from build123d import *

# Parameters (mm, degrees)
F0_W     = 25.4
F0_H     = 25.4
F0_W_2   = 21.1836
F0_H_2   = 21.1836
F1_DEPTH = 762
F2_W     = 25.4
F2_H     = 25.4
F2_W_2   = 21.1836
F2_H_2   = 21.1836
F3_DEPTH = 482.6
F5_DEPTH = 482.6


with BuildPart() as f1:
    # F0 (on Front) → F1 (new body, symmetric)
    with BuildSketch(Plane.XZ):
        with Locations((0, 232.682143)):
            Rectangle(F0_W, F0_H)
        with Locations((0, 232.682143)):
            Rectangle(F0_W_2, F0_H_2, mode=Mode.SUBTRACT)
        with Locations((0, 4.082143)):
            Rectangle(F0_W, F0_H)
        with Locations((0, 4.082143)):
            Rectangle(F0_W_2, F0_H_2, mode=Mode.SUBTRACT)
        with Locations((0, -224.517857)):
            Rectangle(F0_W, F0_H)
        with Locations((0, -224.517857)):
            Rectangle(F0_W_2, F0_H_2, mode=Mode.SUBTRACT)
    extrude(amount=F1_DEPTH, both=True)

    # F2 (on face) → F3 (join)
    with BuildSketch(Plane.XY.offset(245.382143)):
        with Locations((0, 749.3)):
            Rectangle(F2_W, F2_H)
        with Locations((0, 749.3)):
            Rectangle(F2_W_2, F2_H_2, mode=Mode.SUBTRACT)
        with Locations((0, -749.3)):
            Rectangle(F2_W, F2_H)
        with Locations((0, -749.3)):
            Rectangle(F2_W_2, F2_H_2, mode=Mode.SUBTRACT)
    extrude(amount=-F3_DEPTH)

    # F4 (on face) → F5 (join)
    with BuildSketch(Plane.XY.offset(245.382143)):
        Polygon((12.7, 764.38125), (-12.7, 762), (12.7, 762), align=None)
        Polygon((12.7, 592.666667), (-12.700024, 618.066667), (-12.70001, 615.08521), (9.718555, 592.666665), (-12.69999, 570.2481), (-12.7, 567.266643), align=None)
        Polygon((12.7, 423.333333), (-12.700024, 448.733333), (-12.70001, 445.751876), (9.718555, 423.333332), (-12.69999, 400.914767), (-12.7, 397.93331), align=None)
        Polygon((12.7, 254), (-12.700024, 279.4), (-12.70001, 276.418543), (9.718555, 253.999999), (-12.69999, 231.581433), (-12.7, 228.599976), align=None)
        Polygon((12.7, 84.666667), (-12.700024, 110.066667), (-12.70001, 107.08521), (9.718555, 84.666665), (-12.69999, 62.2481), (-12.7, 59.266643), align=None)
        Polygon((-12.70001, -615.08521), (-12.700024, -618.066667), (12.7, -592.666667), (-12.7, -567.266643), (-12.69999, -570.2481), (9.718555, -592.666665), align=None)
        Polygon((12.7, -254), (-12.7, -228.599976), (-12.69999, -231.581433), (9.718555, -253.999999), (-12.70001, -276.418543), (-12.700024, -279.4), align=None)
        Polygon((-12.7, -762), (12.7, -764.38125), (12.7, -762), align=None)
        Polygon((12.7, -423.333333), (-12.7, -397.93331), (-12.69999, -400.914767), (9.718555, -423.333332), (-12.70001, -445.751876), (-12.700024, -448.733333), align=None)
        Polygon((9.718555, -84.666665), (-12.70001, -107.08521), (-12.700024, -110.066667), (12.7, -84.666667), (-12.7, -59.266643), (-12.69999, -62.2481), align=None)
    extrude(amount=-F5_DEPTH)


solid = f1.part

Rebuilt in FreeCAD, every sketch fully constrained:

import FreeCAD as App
import Part
import Sketcher

V = App.Vector
Q = App.Units.Quantity

doc = App.newDocument("Part")
body = doc.addObject("PartDesign::Body", "Body")
body.AllowCompound = True

# Sketch on XZ plane
sketch1 = doc.addObject("Sketcher::SketchObject", "Sketch")
body.addObject(sketch1)
sketch1.AttachmentSupport = (doc.XZ_Plane, [""])
sketch1.MapMode = "FlatFace"
sketch1.addGeometry([
    Part.LineSegment(V(-13, 245, 0), V(-13, 220, 0)),  # 0
    Part.LineSegment(V(-13, 220, 0), V(13, 220, 0)),  # 1
    Part.LineSegment(V(13, 220, 0), V(13, 245, 0)),  # 2
    Part.LineSegment(V(13, 245, 0), V(-13, 245, 0)),  # 3
    Part.LineSegment(V(11, 222, 0), V(-11, 222, 0)),  # 4
    Part.LineSegment(V(-11, 222, 0), V(-11, 243, 0)),  # 5
    Part.LineSegment(V(-11, 243, 0), V(11, 243, 0)),  # 6
    Part.LineSegment(V(11, 243, 0), V(11, 222, 0)),  # 7
    Part.LineSegment(V(-13, 17, 0), V(-13, -9, 0)),  # 8
    Part.LineSegment(V(-13, -9, 0), V(13, -9, 0)),  # 9
    Part.LineSegment(V(13, -9, 0), V(13, 17, 0)),  # 10
    Part.LineSegment(V(13, 17, 0), V(-13, 17, 0)),  # 11
    Part.LineSegment(V(11, -7, 0), V(-11, -7, 0)),  # 12
    Part.LineSegment(V(-11, -7, 0), V(-11, 15, 0)),  # 13
    Part.LineSegment(V(-11, 15, 0), V(11, 15, 0)),  # 14
    Part.LineSegment(V(11, 15, 0), V(11, -7, 0)),  # 15
    Part.LineSegment(V(-13, -212, 0), V(-13, -237, 0)),  # 16
    Part.LineSegment(V(-13, -237, 0), V(13, -237, 0)),  # 17
    Part.LineSegment(V(13, -237, 0), V(13, -212, 0)),  # 18
    Part.LineSegment(V(13, -212, 0), V(-13, -212, 0)),  # 19
    Part.LineSegment(V(11, -235, 0), V(-11, -235, 0)),  # 20
    Part.LineSegment(V(-11, -235, 0), V(-11, -214, 0)),  # 21
    Part.LineSegment(V(-11, -214, 0), V(11, -214, 0)),  # 22
    Part.LineSegment(V(11, -214, 0), V(11, -235, 0)),  # 23
], False)
sketch1.addConstraint([
    Sketcher.Constraint("Coincident", 0, 2, 1, 1),
    Sketcher.Constraint("Coincident", 1, 2, 2, 1),
    Sketcher.Constraint("Coincident", 2, 2, 3, 1),
    Sketcher.Constraint("Coincident", 3, 2, 0, 1),
    Sketcher.Constraint("Coincident", 4, 2, 5, 1),
    Sketcher.Constraint("Coincident", 5, 2, 6, 1),
    Sketcher.Constraint("Coincident", 6, 2, 7, 1),
    Sketcher.Constraint("Coincident", 7, 2, 4, 1),
    Sketcher.Constraint("Coincident", 8, 2, 9, 1),
    Sketcher.Constraint("Coincident", 9, 2, 10, 1),
    Sketcher.Constraint("Coincident", 10, 2, 11, 1),
    Sketcher.Constraint("Coincident", 11, 2, 8, 1),
    Sketcher.Constraint("Coincident", 12, 2, 13, 1),
    Sketcher.Constraint("Coincident", 13, 2, 14, 1),
    Sketcher.Constraint("Coincident", 14, 2, 15, 1),
    Sketcher.Constraint("Coincident", 15, 2, 12, 1),
    Sketcher.Constraint("Coincident", 16, 2, 17, 1),
    Sketcher.Constraint("Coincident", 17, 2, 18, 1),
    Sketcher.Constraint("Coincident", 18, 2, 19, 1),
    Sketcher.Constraint("Coincident", 19, 2, 16, 1),
    Sketcher.Constraint("Coincident", 20, 2, 21, 1),
    Sketcher.Constraint("Coincident", 21, 2, 22, 1),
    Sketcher.Constraint("Coincident", 22, 2, 23, 1),
    Sketcher.Constraint("Coincident", 23, 2, 20, 1),
    Sketcher.Constraint("Vertical", 0),
    Sketcher.Constraint("Horizontal", 1),
    Sketcher.Constraint("Vertical", 2),
    Sketcher.Constraint("Horizontal", 3),
    Sketcher.Constraint("Horizontal", 4),
    Sketcher.Constraint("Vertical", 5),
    Sketcher.Constraint("Horizontal", 6),
    Sketcher.Constraint("Vertical", 7),
    Sketcher.Constraint("Vertical", 8),
    Sketcher.Constraint("Horizontal", 9),
    Sketcher.Constraint("Vertical", 10),
    Sketcher.Constraint("Horizontal", 11),
    Sketcher.Constraint("Horizontal", 12),
    Sketcher.Constraint("Vertical", 13),
    Sketcher.Constraint("Horizontal", 14),
    Sketcher.Constraint("Vertical", 15),
    Sketcher.Constraint("Vertical", 16),
    Sketcher.Constraint("Horizontal", 17),
    Sketcher.Constraint("Vertical", 18),
    Sketcher.Constraint("Horizontal", 19),
    Sketcher.Constraint("Horizontal", 20),
    Sketcher.Constraint("Vertical", 21),
    Sketcher.Constraint("Horizontal", 22),
    Sketcher.Constraint("Vertical", 23),
    Sketcher.Constraint("Vertical", 3, 2, 8, 2),
    Sketcher.Constraint("Vertical", 2, 2, 9, 2),
    Sketcher.Constraint("Vertical", 5, 2, 12, 2),
    Sketcher.Constraint("Vertical", 7, 2, 14, 2),
    Sketcher.Constraint("Vertical", 11, 2, 16, 2),
    Sketcher.Constraint("Vertical", 10, 2, 17, 2),
    Sketcher.Constraint("Vertical", 13, 2, 20, 2),
    Sketcher.Constraint("Vertical", 15, 2, 22, 2),
    Sketcher.Constraint("Equal", 19, 0),
    Sketcher.Constraint("Equal", 22, 5),
    Sketcher.Constraint("Equal", 2, 8),
    Sketcher.Constraint("Equal", 7, 13),
    Sketcher.Constraint("Equal", 10, 16),
    Sketcher.Constraint("Equal", 15, 21),
    Sketcher.Constraint("DistanceX", 1, 1, 1, 2, Q("1 in")),
    Sketcher.Constraint("DistanceY", 8, 2, 0, 2, Q("9 in")),
    Sketcher.Constraint("DistanceY", 16, 2, 8, 2, Q("9 in")),
    Sketcher.Constraint("DistanceX", 0, 2, -1, 1, Q("0.5 in")),
    Sketcher.Constraint("DistanceX", 4, 2, 4, 1, Q("0.834 in")),
    Sketcher.Constraint("DistanceX", 4, 2, -1, 1, Q("0.417 in")),
    Sketcher.Constraint("DistanceY", 0, 2, 4, 2, Q("0.083 in")),
    Sketcher.Constraint("DistanceY", 8, 2, 12, 2, Q("0.083 in")),
    Sketcher.Constraint("DistanceY", 16, 2, 20, 2, Q("0.083 in")),
    Sketcher.Constraint("DistanceY", -1, 1, 0, 2, 219.982143),
])
pad1 = doc.addObject("PartDesign::Pad", "Pad")
body.addObject(pad1)
pad1.Profile = sketch1
pad1.Length = Q("60 in")
pad1.Midplane = True

# Sketch on XY plane
sketch2 = doc.addObject("Sketcher::SketchObject", "Sketch001")
body.addObject(sketch2)
sketch2.AttachmentSupport = (doc.XY_Plane, [""])
sketch2.MapMode = "FlatFace"
sketch2.AttachmentOffset = App.Placement(V(0, 0, 245.382143), App.Rotation())
sketch2.addGeometry([
    Part.LineSegment(V(-13, 762, 0), V(-13, 737, 0)),  # 0
    Part.LineSegment(V(-13, 737, 0), V(13, 737, 0)),  # 1
    Part.LineSegment(V(13, 737, 0), V(13, 762, 0)),  # 2
    Part.LineSegment(V(13, 762, 0), V(-13, 762, 0)),  # 3
    Part.LineSegment(V(11, 739, 0), V(-11, 739, 0)),  # 4
    Part.LineSegment(V(-11, 739, 0), V(-11, 760, 0)),  # 5
    Part.LineSegment(V(-11, 760, 0), V(11, 760, 0)),  # 6
    Part.LineSegment(V(11, 760, 0), V(11, 739, 0)),  # 7
    Part.LineSegment(V(-13, -737, 0), V(-13, -762, 0)),  # 8
    Part.LineSegment(V(-13, -762, 0), V(13, -762, 0)),  # 9
    Part.LineSegment(V(13, -762, 0), V(13, -737, 0)),  # 10
    Part.LineSegment(V(13, -737, 0), V(-13, -737, 0)),  # 11
    Part.LineSegment(V(11, -760, 0), V(-11, -760, 0)),  # 12
    Part.LineSegment(V(-11, -760, 0), V(-11, -739, 0)),  # 13
    Part.LineSegment(V(-11, -739, 0), V(11, -739, 0)),  # 14
    Part.LineSegment(V(11, -739, 0), V(11, -760, 0)),  # 15
], False)
sketch2.addConstraint([
    Sketcher.Constraint("Coincident", 0, 2, 1, 1),
    Sketcher.Constraint("Coincident", 1, 2, 2, 1),
    Sketcher.Constraint("Coincident", 2, 2, 3, 1),
    Sketcher.Constraint("Coincident", 3, 2, 0, 1),
    Sketcher.Constraint("Coincident", 4, 2, 5, 1),
    Sketcher.Constraint("Coincident", 5, 2, 6, 1),
    Sketcher.Constraint("Coincident", 6, 2, 7, 1),
    Sketcher.Constraint("Coincident", 7, 2, 4, 1),
    Sketcher.Constraint("Coincident", 8, 2, 9, 1),
    Sketcher.Constraint("Coincident", 9, 2, 10, 1),
    Sketcher.Constraint("Coincident", 10, 2, 11, 1),
    Sketcher.Constraint("Coincident", 11, 2, 8, 1),
    Sketcher.Constraint("Coincident", 12, 2, 13, 1),
    Sketcher.Constraint("Coincident", 13, 2, 14, 1),
    Sketcher.Constraint("Coincident", 14, 2, 15, 1),
    Sketcher.Constraint("Coincident", 15, 2, 12, 1),
    Sketcher.Constraint("Vertical", 0),
    Sketcher.Constraint("Horizontal", 1),
    Sketcher.Constraint("Vertical", 2),
    Sketcher.Constraint("Horizontal", 3),
    Sketcher.Constraint("Horizontal", 4),
    Sketcher.Constraint("Vertical", 5),
    Sketcher.Constraint("Horizontal", 6),
    Sketcher.Constraint("Vertical", 7),
    Sketcher.Constraint("Vertical", 8),
    Sketcher.Constraint("Horizontal", 9),
    Sketcher.Constraint("Vertical", 10),
    Sketcher.Constraint("Horizontal", 11),
    Sketcher.Constraint("Horizontal", 12),
    Sketcher.Constraint("Vertical", 13),
    Sketcher.Constraint("Horizontal", 14),
    Sketcher.Constraint("Vertical", 15),
    Sketcher.Constraint("Symmetric", 2, 2, 8, 2, -1, 1),
    Sketcher.Constraint("Symmetric", 0, 2, 10, 2, -1, 1),
    Sketcher.Constraint("Symmetric", 6, 2, 12, 2, -1, 1),
    Sketcher.Constraint("Symmetric", 4, 2, 14, 2, -1, 1),
    Sketcher.Constraint("Vertical", 3, 2, 8, 2),
    Sketcher.Constraint("Vertical", 5, 2, 12, 2),
    Sketcher.Constraint("Equal", 11, 0),
    Sketcher.Constraint("Equal", 14, 5),
    Sketcher.Constraint("DistanceX", 1, 1, 1, 2, Q("1 in")),
    Sketcher.Constraint("DistanceY", -1, 1, 0, 2, Q("29 in")),
    Sketcher.Constraint("DistanceX", 4, 2, 4, 1, Q("0.834 in")),
    Sketcher.Constraint("DistanceY", -1, 1, 4, 2, Q("29.083 in")),
])
pad2 = doc.addObject("PartDesign::Pad", "Pad001")
body.addObject(pad2)
pad2.Profile = sketch2
pad2.Length = Q("19 in")
pad2.Reversed = True

# Sketch on XY plane
sketch3 = doc.addObject("Sketcher::SketchObject", "Sketch002")
body.addObject(sketch3)
sketch3.AttachmentSupport = (doc.XY_Plane, [""])
sketch3.MapMode = "FlatFace"
sketch3.AttachmentOffset = App.Placement(V(0, 0, 245.382143), App.Rotation())
sketch3.addGeometry([
    Part.LineSegment(V(12.7, 764.38125, 0), V(-12.7, 762, 0)),  # 0
    Part.LineSegment(V(-12.7, 762, 0), V(12.7, 762, 0)),  # 1
    Part.LineSegment(V(12.7, 762, 0), V(12.7, 764.38125, 0)),  # 2
    Part.LineSegment(V(12.7, 592.666667, 0), V(-12.700024, 618.066667, 0)),  # 3
    Part.LineSegment(V(-12.700024, 618.066667, 0), V(-12.70001, 615.08521, 0)),  # 4
    Part.LineSegment(V(-12.70001, 615.08521, 0), V(9.718555, 592.666665, 0)),  # 5
    Part.LineSegment(V(9.718555, 592.666665, 0), V(-12.69999, 570.2481, 0)),  # 6
    Part.LineSegment(V(-12.69999, 570.2481, 0), V(-12.7, 567.266643, 0)),  # 7
    Part.LineSegment(V(-12.7, 567.266643, 0), V(12.7, 592.666667, 0)),  # 8
    Part.LineSegment(V(12.7, 423.333333, 0), V(-12.700024, 448.733333, 0)),  # 9
    Part.LineSegment(V(-12.700024, 448.733333, 0), V(-12.70001, 445.751876, 0)),  # 10
    Part.LineSegment(V(-12.70001, 445.751876, 0), V(9.718555, 423.333332, 0)),  # 11
    Part.LineSegment(V(9.718555, 423.333332, 0), V(-12.69999, 400.914767, 0)),  # 12
    Part.LineSegment(V(-12.69999, 400.914767, 0), V(-12.7, 397.93331, 0)),  # 13
    Part.LineSegment(V(-12.7, 397.93331, 0), V(12.7, 423.333333, 0)),  # 14
    Part.LineSegment(V(12.7, 254, 0), V(-12.700024, 279.4, 0)),  # 15
    Part.LineSegment(V(-12.700024, 279.4, 0), V(-12.70001, 276.418543, 0)),  # 16
    Part.LineSegment(V(-12.70001, 276.418543, 0), V(9.718555, 253.999999, 0)),  # 17
    Part.LineSegment(V(9.718555, 253.999999, 0), V(-12.69999, 231.581433, 0)),  # 18
    Part.LineSegment(V(-12.69999, 231.581433, 0), V(-12.7, 228.599976, 0)),  # 19
    Part.LineSegment(V(-12.7, 228.599976, 0), V(12.7, 254, 0)),  # 20
    Part.LineSegment(V(12.7, 84.666667, 0), V(-12.700024, 110.066667, 0)),  # 21
    Part.LineSegment(V(-12.700024, 110.066667, 0), V(-12.70001, 107.08521, 0)),  # 22
    Part.LineSegment(V(-12.70001, 107.08521, 0), V(9.718555, 84.666665, 0)),  # 23
    Part.LineSegment(V(9.718555, 84.666665, 0), V(-12.69999, 62.2481, 0)),  # 24
    Part.LineSegment(V(-12.69999, 62.2481, 0), V(-12.7, 59.266643, 0)),  # 25
    Part.LineSegment(V(-12.7, 59.266643, 0), V(12.7, 84.666667, 0)),  # 26
    Part.LineSegment(V(-12.70001, -615.08521, 0), V(-12.700024, -618.066667, 0)),  # 27
    Part.LineSegment(V(-12.700024, -618.066667, 0), V(12.7, -592.666667, 0)),  # 28
    Part.LineSegment(V(12.7, -592.666667, 0), V(-12.7, -567.266643, 0)),  # 29
    Part.LineSegment(V(-12.7, -567.266643, 0), V(-12.69999, -570.2481, 0)),  # 30
    Part.LineSegment(V(-12.69999, -570.2481, 0), V(9.718555, -592.666665, 0)),  # 31
    Part.LineSegment(V(9.718555, -592.666665, 0), V(-12.70001, -615.08521, 0)),  # 32
    Part.LineSegment(V(12.7, -254, 0), V(-12.7, -228.599976, 0)),  # 33
    Part.LineSegment(V(-12.7, -228.599976, 0), V(-12.69999, -231.581433, 0)),  # 34
    Part.LineSegment(V(-12.69999, -231.581433, 0), V(9.718555, -253.999999, 0)),  # 35
    Part.LineSegment(V(9.718555, -253.999999, 0), V(-12.70001, -276.418543, 0)),  # 36
    Part.LineSegment(V(-12.70001, -276.418543, 0), V(-12.700024, -279.4, 0)),  # 37
    Part.LineSegment(V(-12.700024, -279.4, 0), V(12.7, -254, 0)),  # 38
    Part.LineSegment(V(-12.7, -762, 0), V(12.7, -764.38125, 0)),  # 39
    Part.LineSegment(V(12.7, -764.38125, 0), V(12.7, -762, 0)),  # 40
    Part.LineSegment(V(12.7, -762, 0), V(-12.7, -762, 0)),  # 41
    Part.LineSegment(V(12.7, -423.333333, 0), V(-12.7, -397.93331, 0)),  # 42
    Part.LineSegment(V(-12.7, -397.93331, 0), V(-12.69999, -400.914767, 0)),  # 43
    Part.LineSegment(V(-12.69999, -400.914767, 0), V(9.718555, -423.333332, 0)),  # 44
    Part.LineSegment(V(9.718555, -423.333332, 0), V(-12.70001, -445.751876, 0)),  # 45
    Part.LineSegment(V(-12.70001, -445.751876, 0), V(-12.700024, -448.733333, 0)),  # 46
    Part.LineSegment(V(-12.700024, -448.733333, 0), V(12.7, -423.333333, 0)),  # 47
    Part.LineSegment(V(9.718555, -84.666665, 0), V(-12.70001, -107.08521, 0)),  # 48
    Part.LineSegment(V(-12.70001, -107.08521, 0), V(-12.700024, -110.066667, 0)),  # 49
    Part.LineSegment(V(-12.700024, -110.066667, 0), V(12.7, -84.666667, 0)),  # 50
    Part.LineSegment(V(12.7, -84.666667, 0), V(-12.7, -59.266643, 0)),  # 51
    Part.LineSegment(V(-12.7, -59.266643, 0), V(-12.69999, -62.2481, 0)),  # 52
    Part.LineSegment(V(-12.69999, -62.2481, 0), V(9.718555, -84.666665, 0)),  # 53
], False)
sketch3.addConstraint([
    Sketcher.Constraint("Coincident", 0, 2, 1, 1),
    Sketcher.Constraint("Coincident", 1, 2, 2, 1),
    Sketcher.Constraint("Coincident", 2, 2, 0, 1),
    Sketcher.Constraint("Coincident", 3, 2, 4, 1),
    Sketcher.Constraint("Coincident", 4, 2, 5, 1),
    Sketcher.Constraint("Coincident", 5, 2, 6, 1),
    Sketcher.Constraint("Coincident", 6, 2, 7, 1),
    Sketcher.Constraint("Coincident", 7, 2, 8, 1),
    Sketcher.Constraint("Coincident", 8, 2, 3, 1),
    Sketcher.Constraint("Coincident", 9, 2, 10, 1),
    Sketcher.Constraint("Coincident", 10, 2, 11, 1),
    Sketcher.Constraint("Coincident", 11, 2, 12, 1),
    Sketcher.Constraint("Coincident", 12, 2, 13, 1),
    Sketcher.Constraint("Coincident", 13, 2, 14, 1),
    Sketcher.Constraint("Coincident", 14, 2, 9, 1),
    Sketcher.Constraint("Coincident", 15, 2, 16, 1),
    Sketcher.Constraint("Coincident", 16, 2, 17, 1),
    Sketcher.Constraint("Coincident", 17, 2, 18, 1),
    Sketcher.Constraint("Coincident", 18, 2, 19, 1),
    Sketcher.Constraint("Coincident", 19, 2, 20, 1),
    Sketcher.Constraint("Coincident", 20, 2, 15, 1),
    Sketcher.Constraint("Coincident", 21, 2, 22, 1),
    Sketcher.Constraint("Coincident", 22, 2, 23, 1),
    Sketcher.Constraint("Coincident", 23, 2, 24, 1),
    Sketcher.Constraint("Coincident", 24, 2, 25, 1),
    Sketcher.Constraint("Coincident", 25, 2, 26, 1),
    Sketcher.Constraint("Coincident", 26, 2, 21, 1),
    Sketcher.Constraint("Coincident", 27, 2, 28, 1),
    Sketcher.Constraint("Coincident", 28, 2, 29, 1),
    Sketcher.Constraint("Coincident", 29, 2, 30, 1),
    Sketcher.Constraint("Coincident", 30, 2, 31, 1),
    Sketcher.Constraint("Coincident", 31, 2, 32, 1),
    Sketcher.Constraint("Coincident", 32, 2, 27, 1),
    Sketcher.Constraint("Coincident", 33, 2, 34, 1),
    Sketcher.Constraint("Coincident", 34, 2, 35, 1),
    Sketcher.Constraint("Coincident", 35, 2, 36, 1),
    Sketcher.Constraint("Coincident", 36, 2, 37, 1),
    Sketcher.Constraint("Coincident", 37, 2, 38, 1),
    Sketcher.Constraint("Coincident", 38, 2, 33, 1),
    Sketcher.Constraint("Coincident", 39, 2, 40, 1),
    Sketcher.Constraint("Coincident", 40, 2, 41, 1),
    Sketcher.Constraint("Coincident", 41, 2, 39, 1),
    Sketcher.Constraint("Coincident", 42, 2, 43, 1),
    Sketcher.Constraint("Coincident", 43, 2, 44, 1),
    Sketcher.Constraint("Coincident", 44, 2, 45, 1),
    Sketcher.Constraint("Coincident", 45, 2, 46, 1),
    Sketcher.Constraint("Coincident", 46, 2, 47, 1),
    Sketcher.Constraint("Coincident", 47, 2, 42, 1),
    Sketcher.Constraint("Coincident", 48, 2, 49, 1),
    Sketcher.Constraint("Coincident", 49, 2, 50, 1),
    Sketcher.Constraint("Coincident", 50, 2, 51, 1),
    Sketcher.Constraint("Coincident", 51, 2, 52, 1),
    Sketcher.Constraint("Coincident", 52, 2, 53, 1),
    Sketcher.Constraint("Coincident", 53, 2, 48, 1),
    Sketcher.Constraint("Horizontal", 1),
    Sketcher.Constraint("Vertical", 2),
    Sketcher.Constraint("Vertical", 40),
    Sketcher.Constraint("Horizontal", 41),
    Sketcher.Constraint("DistanceX", 1, 1, 1, 2, Q("1 in")),
    Sketcher.Constraint("DistanceX", 41, 2, 41, 1, Q("1 in")),
    Sketcher.Constraint("DistanceY", -1, 1, 0, 2, Q("30 in")),
    Sketcher.Constraint("DistanceY", -1, 1, 15, 2, Q("11 in")),
    Sketcher.Constraint("DistanceY", -1, 1, 17, 2, Q("10 in")),
    Sketcher.Constraint("DistanceY", -1, 1, 20, 2, Q("10 in")),
    Sketcher.Constraint("DistanceY", 35, 2, -1, 1, Q("10 in")),
    Sketcher.Constraint("DistanceY", 37, 2, -1, 1, Q("11 in")),
    Sketcher.Constraint("DistanceY", 38, 2, -1, 1, Q("10 in")),
    Sketcher.Constraint("DistanceY", 40, 2, -1, 1, Q("30 in")),
    Sketcher.Constraint("DistanceY", 5, 2, 3, 2, Q("1.0000001 in")),
    Sketcher.Constraint("DistanceX", 7, 2, 8, 2, Q("1 in")),
    Sketcher.Constraint("DistanceY", 8, 2, 3, 2, Q("1 in")),
    Sketcher.Constraint("DistanceY", 11, 2, 9, 2, Q("1 in")),
    Sketcher.Constraint("DistanceX", 13, 2, 14, 2, Q("1 in")),
    Sketcher.Constraint("DistanceY", 14, 2, 9, 2, Q("1 in")),
    Sketcher.Constraint("DistanceX", 19, 2, 20, 2, Q("1 in")),
    Sketcher.Constraint("DistanceY", 23, 2, 21, 2, Q("1.0000001 in")),
    Sketcher.Constraint("DistanceY", 26, 2, 21, 2, Q("1 in")),
    Sketcher.Constraint("DistanceX", 25, 2, 26, 2, Q("1 in")),
    Sketcher.Constraint("DistanceY", 27, 2, 28, 2, Q("1 in")),
    Sketcher.Constraint("DistanceX", 25, 2, 28, 2, Q("1 in")),
    Sketcher.Constraint("DistanceX", 29, 2, 28, 2, Q("1 in")),
    Sketcher.Constraint("DistanceY", 27, 2, 31, 2, Q("1.0000001 in")),
    Sketcher.Constraint("DistanceX", 33, 2, 26, 2, Q("1 in")),
    Sketcher.Constraint("DistanceX", 33, 2, 38, 2, Q("1 in")),
    Sketcher.Constraint("DistanceX", 42, 2, 38, 2, Q("1 in")),
    Sketcher.Constraint("DistanceY", 46, 2, 44, 2, Q("1 in")),
    Sketcher.Constraint("DistanceX", 42, 2, 47, 2, Q("1 in")),
    Sketcher.Constraint("DistanceY", 46, 2, 47, 2, Q("1 in")),
    Sketcher.Constraint("DistanceY", 49, 2, 50, 2, Q("1 in")),
    Sketcher.Constraint("DistanceX", 33, 2, 50, 2, Q("1 in")),
    Sketcher.Constraint("DistanceX", 51, 2, 50, 2, Q("1 in")),
    Sketcher.Constraint("DistanceY", 49, 2, 53, 2, Q("1.0000001 in")),
    Sketcher.Constraint("DistanceX", 0, 2, -1, 1, Q("0.5 in")),
    Sketcher.Constraint("DistanceX", 7, 2, -1, 1, Q("0.5 in")),
    Sketcher.Constraint("DistanceX", 13, 2, -1, 1, Q("0.5 in")),
    Sketcher.Constraint("DistanceX", 19, 2, -1, 1, Q("0.5 in")),
    Sketcher.Constraint("DistanceX", 25, 2, -1, 1, Q("0.5 in")),
    Sketcher.Constraint("DistanceX", -1, 1, 39, 2, Q("0.5 in")),
    Sketcher.Constraint("DistanceY", 2, 1, 2, 2, Q("0.09375 in")),
    Sketcher.Constraint("DistanceY", 40, 1, 40, 2, Q("0.09375 in")),
    Sketcher.Constraint("DistanceY", -1, 1, 6, 2, 570.2481),
    Sketcher.Constraint("DistanceY", -1, 1, 24, 2, 62.2481),
    Sketcher.Constraint("DistanceY", 30, 2, -1, 1, 570.2481),
    Sketcher.Constraint("DistanceY", 52, 2, -1, 1, 62.2481),
    Sketcher.Constraint("DistanceY", 34, 2, 23, 2, 316.248098),
    Sketcher.Constraint("DistanceY", 29, 2, 36, 2, 290.8481),
    Sketcher.Constraint("Distance", 3, 35.921041),
    Sketcher.Constraint("Distance", 8, 35.921041),
    Sketcher.Constraint("Distance", 9, 35.921041),
    Sketcher.Constraint("Distance", 14, 35.921041),
    Sketcher.Constraint("Distance", 15, 35.921041),
    Sketcher.Constraint("Distance", 20, 35.921041),
    Sketcher.Constraint("Distance", 21, 35.921041),
    Sketcher.Constraint("Distance", 26, 35.921041),
    Sketcher.Constraint("Distance", 28, 35.921041),
    Sketcher.Constraint("Distance", 29, 35.921041),
    Sketcher.Constraint("Distance", 33, 35.921041),
    Sketcher.Constraint("Distance", 38, 35.921041),
    Sketcher.Constraint("Distance", 42, 35.921041),
    Sketcher.Constraint("Distance", 47, 35.921041),
    Sketcher.Constraint("Distance", 50, 35.921041),
    Sketcher.Constraint("Distance", 51, 35.921041),
    Sketcher.Constraint("DistanceX", 4, 2, -1, 1, 12.70001),
    Sketcher.Constraint("DistanceY", -1, 1, 4, 2, 615.08521),
    Sketcher.Constraint("DistanceX", 6, 2, -1, 1, 12.69999),
    Sketcher.Constraint("DistanceX", 10, 2, -1, 1, 12.70001),
    Sketcher.Constraint("DistanceY", -1, 1, 11, 2, 423.333332),
    Sketcher.Constraint("DistanceX", 12, 2, -1, 1, 12.69999),
    Sketcher.Constraint("DistanceX", 16, 2, -1, 1, 12.70001),
    Sketcher.Constraint("DistanceX", 18, 2, -1, 1, 12.69999),
    Sketcher.Constraint("DistanceX", 22, 2, -1, 1, 12.70001),
    Sketcher.Constraint("DistanceY", -1, 1, 22, 2, 107.08521),
    Sketcher.Constraint("DistanceX", 24, 2, -1, 1, 12.69999),
    Sketcher.Constraint("DistanceX", 30, 2, -1, 1, 12.69999),
    Sketcher.Constraint("DistanceX", 32, 2, -1, 1, 12.70001),
    Sketcher.Constraint("DistanceY", 32, 2, -1, 1, 615.08521),
    Sketcher.Constraint("DistanceX", 34, 2, -1, 1, 12.69999),
    Sketcher.Constraint("DistanceX", 36, 2, -1, 1, 12.70001),
    Sketcher.Constraint("DistanceY", 42, 2, -1, 1, 397.93331),
    Sketcher.Constraint("DistanceX", 43, 2, -1, 1, 12.69999),
    Sketcher.Constraint("DistanceX", 45, 2, -1, 1, 12.70001),
    Sketcher.Constraint("DistanceX", 48, 2, -1, 1, 12.70001),
    Sketcher.Constraint("DistanceY", 48, 2, -1, 1, 107.08521),
    Sketcher.Constraint("DistanceX", 52, 2, -1, 1, 12.69999),
    Sketcher.Constraint("DistanceX", 3, 2, 5, 2, 22.418579),
    Sketcher.Constraint("DistanceY", 9, 2, 7, 2, 118.53331),
    Sketcher.Constraint("DistanceY", 10, 2, 5, 2, 146.914789),
    Sketcher.Constraint("DistanceX", 9, 2, 11, 2, 22.418579),
    Sketcher.Constraint("DistanceY", 12, 2, 10, 2, 44.837109),
    Sketcher.Constraint("DistanceY", 16, 2, 11, 2, 146.914789),
    Sketcher.Constraint("DistanceX", 15, 2, 17, 2, 22.418579),
    Sketcher.Constraint("DistanceY", 18, 2, 16, 2, 44.83711),
    Sketcher.Constraint("DistanceY", 21, 2, 19, 2, 118.533309),
    Sketcher.Constraint("DistanceX", 21, 2, 23, 2, 22.418579),
    Sketcher.Constraint("DistanceY", 27, 2, 25, 2, 677.33331),
    Sketcher.Constraint("DistanceX", 27, 2, 31, 2, 22.418579),
    Sketcher.Constraint("DistanceX", 37, 2, 35, 2, 22.418579),
    Sketcher.Constraint("DistanceX", 37, 2, 44, 2, 22.418579),
    Sketcher.Constraint("DistanceY", 45, 2, 43, 2, 44.837109),
    Sketcher.Constraint("DistanceY", 33, 2, 49, 2, 118.533309),
    Sketcher.Constraint("DistanceX", 49, 2, 53, 2, 22.418579),
    Sketcher.Constraint("Distance", 43, 2.981457),
])
pad3 = doc.addObject("PartDesign::Pad", "Pad002")
body.addObject(pad3)
pad3.Profile = sketch3
pad3.Length = Q("19 in")
pad3.Reversed = True

doc.recompute()
